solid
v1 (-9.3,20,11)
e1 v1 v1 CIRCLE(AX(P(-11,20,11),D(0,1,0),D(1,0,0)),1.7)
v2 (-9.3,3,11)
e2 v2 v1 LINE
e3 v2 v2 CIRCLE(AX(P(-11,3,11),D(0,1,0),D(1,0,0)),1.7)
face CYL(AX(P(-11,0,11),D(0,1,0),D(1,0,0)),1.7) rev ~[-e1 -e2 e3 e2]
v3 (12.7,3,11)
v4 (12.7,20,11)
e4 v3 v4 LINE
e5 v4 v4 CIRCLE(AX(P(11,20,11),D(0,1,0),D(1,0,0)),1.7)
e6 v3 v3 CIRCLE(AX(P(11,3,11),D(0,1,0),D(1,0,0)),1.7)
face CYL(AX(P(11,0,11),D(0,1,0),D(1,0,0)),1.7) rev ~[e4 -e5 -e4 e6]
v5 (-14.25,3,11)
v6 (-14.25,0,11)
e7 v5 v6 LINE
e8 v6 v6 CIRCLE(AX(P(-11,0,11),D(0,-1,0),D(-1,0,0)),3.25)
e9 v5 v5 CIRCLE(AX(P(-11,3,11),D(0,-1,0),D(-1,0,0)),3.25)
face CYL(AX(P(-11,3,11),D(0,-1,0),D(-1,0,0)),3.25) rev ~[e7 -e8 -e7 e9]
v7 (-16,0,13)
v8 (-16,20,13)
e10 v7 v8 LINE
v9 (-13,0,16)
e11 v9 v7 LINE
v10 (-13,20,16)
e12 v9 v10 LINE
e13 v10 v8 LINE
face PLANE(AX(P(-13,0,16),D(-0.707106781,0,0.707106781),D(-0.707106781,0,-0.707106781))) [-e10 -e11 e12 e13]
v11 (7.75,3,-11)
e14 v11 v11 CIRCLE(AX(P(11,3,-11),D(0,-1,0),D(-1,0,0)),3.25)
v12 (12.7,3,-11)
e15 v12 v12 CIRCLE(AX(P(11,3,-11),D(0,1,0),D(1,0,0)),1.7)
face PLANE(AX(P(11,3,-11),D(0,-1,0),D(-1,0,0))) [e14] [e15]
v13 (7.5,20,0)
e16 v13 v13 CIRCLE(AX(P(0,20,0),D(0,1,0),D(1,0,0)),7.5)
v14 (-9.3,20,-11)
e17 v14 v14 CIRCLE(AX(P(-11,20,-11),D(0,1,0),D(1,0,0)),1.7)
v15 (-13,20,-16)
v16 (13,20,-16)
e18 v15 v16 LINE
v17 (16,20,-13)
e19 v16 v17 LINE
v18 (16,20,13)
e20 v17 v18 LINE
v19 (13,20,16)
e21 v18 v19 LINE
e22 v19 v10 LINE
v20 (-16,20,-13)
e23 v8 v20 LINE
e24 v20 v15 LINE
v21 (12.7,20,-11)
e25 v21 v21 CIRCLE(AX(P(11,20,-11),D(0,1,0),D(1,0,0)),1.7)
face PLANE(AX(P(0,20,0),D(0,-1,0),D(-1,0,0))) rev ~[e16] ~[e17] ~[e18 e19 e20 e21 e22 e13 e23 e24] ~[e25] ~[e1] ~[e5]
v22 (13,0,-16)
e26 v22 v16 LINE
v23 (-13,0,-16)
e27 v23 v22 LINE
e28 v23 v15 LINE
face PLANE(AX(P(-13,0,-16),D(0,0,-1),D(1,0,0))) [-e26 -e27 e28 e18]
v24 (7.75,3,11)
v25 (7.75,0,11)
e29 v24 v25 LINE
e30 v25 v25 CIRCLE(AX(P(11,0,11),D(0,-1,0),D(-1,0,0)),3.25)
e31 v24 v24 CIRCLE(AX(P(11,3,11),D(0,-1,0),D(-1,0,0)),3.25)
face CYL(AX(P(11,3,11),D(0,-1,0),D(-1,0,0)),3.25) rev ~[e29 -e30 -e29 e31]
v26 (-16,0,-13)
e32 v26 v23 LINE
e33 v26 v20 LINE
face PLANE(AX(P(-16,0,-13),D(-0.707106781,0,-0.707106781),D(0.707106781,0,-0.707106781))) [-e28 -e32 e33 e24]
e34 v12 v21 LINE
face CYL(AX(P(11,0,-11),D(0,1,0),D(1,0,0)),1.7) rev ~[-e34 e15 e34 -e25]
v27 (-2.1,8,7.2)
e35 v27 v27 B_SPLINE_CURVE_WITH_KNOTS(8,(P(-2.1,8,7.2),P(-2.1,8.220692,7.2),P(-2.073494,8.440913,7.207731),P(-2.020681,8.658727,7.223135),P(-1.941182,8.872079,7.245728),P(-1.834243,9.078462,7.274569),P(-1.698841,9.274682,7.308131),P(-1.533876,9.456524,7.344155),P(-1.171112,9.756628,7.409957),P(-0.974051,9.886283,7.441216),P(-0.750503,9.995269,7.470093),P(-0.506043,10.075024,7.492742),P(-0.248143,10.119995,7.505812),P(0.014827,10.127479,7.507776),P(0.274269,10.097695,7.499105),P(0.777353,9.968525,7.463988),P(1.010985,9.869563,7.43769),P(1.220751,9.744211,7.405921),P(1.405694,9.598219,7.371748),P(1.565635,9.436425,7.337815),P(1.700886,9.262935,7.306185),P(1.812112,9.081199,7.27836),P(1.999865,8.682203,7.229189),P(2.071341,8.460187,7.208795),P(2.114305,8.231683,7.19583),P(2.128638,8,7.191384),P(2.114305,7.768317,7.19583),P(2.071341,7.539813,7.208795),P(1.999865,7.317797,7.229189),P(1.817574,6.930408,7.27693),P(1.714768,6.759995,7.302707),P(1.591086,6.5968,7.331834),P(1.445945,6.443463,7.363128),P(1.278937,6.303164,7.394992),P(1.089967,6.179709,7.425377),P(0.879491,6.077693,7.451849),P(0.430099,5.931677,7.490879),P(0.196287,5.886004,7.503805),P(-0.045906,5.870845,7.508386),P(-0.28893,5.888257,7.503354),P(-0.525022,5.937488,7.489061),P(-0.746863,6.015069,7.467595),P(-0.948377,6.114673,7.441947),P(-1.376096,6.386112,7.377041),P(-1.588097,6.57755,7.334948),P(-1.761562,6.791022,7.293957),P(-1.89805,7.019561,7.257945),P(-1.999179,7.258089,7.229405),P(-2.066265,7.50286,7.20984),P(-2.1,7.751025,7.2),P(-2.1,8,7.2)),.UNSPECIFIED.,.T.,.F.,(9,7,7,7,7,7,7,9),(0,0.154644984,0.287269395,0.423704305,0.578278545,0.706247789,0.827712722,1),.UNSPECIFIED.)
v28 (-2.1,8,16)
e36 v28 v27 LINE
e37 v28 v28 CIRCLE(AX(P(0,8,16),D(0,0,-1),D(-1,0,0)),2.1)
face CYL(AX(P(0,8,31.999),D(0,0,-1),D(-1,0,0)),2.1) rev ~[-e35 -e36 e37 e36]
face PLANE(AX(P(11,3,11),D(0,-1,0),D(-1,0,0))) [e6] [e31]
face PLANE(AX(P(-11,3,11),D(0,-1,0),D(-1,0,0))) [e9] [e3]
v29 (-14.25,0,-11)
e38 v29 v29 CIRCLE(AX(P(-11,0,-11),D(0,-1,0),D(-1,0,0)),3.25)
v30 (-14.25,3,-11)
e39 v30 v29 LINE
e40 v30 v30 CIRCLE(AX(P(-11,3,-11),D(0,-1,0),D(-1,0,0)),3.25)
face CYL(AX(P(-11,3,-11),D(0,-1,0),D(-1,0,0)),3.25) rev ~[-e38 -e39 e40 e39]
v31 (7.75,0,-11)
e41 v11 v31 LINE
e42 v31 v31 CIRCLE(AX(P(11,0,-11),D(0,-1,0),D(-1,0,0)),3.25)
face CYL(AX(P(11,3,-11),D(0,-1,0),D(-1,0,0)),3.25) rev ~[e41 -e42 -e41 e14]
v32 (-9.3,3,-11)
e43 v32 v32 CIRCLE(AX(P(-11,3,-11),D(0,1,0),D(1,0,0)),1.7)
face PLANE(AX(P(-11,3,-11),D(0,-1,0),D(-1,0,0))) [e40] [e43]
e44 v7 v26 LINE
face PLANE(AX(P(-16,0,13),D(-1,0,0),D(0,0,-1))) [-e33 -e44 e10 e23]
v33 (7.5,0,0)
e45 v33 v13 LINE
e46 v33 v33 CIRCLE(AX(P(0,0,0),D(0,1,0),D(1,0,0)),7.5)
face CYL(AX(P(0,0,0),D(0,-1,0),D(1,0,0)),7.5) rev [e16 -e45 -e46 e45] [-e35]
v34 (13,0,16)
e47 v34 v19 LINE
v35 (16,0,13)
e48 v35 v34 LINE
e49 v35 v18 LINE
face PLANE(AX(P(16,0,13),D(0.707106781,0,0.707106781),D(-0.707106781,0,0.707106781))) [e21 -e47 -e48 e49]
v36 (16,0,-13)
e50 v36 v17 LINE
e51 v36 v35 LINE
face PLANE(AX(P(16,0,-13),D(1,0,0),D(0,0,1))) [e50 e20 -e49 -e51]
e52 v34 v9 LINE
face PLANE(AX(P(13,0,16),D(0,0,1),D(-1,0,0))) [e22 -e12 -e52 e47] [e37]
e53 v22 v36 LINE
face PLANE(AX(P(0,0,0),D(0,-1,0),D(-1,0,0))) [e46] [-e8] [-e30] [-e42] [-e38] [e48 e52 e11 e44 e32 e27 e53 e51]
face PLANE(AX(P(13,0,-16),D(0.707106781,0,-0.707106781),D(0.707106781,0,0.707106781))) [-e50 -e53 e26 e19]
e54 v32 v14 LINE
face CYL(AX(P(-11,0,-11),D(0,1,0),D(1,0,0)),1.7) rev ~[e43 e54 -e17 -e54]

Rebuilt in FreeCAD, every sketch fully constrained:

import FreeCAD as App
import Part
import Sketcher
from FreeCAD import Vector

doc = App.newDocument("Part")
body = doc.addObject("PartDesign::Body", "Body")

# Sketch on XZ plane
sketch1 = body.newObject("Sketcher::SketchObject", "Sketch")
sketch1.AttachmentSupport = (doc.getObject("XZ_Plane"), [""])
sketch1.MapMode = "FlatFace"
sketch1.addGeometry(Part.LineSegment(Vector(-13, -16, 0), Vector(-16, -13, 0)), False)
sketch1.addGeometry(Part.LineSegment(Vector(-16, -13, 0), Vector(-16, 13, 0)), False)
sketch1.addGeometry(Part.LineSegment(Vector(-16, 13, 0), Vector(-13, 16, 0)), False)
sketch1.addGeometry(Part.LineSegment(Vector(-13, 16, 0), Vector(13, 16, 0)), False)
sketch1.addGeometry(Part.LineSegment(Vector(13, 16, 0), Vector(16, 13, 0)), False)
sketch1.addGeometry(Part.LineSegment(Vector(16, 13, 0), Vector(16, -13, 0)), False)
sketch1.addGeometry(Part.LineSegment(Vector(16, -13, 0), Vector(13, -16, 0)), False)
sketch1.addGeometry(Part.LineSegment(Vector(13, -16, 0), Vector(-13, -16, 0)), False)
sketch1.addGeometry(Part.Circle(Vector(0, 0, 0), Vector(0, 0, 1), 7.5), False)
sketch1.addConstraint(Sketcher.Constraint("Coincident", 0, 2, 1, 1))
sketch1.addConstraint(Sketcher.Constraint("Coincident", 1, 2, 2, 1))
sketch1.addConstraint(Sketcher.Constraint("Coincident", 2, 2, 3, 1))
sketch1.addConstraint(Sketcher.Constraint("Coincident", 3, 2, 4, 1))
sketch1.addConstraint(Sketcher.Constraint("Coincident", 4, 2, 5, 1))
sketch1.addConstraint(Sketcher.Constraint("Coincident", 5, 2, 6, 1))
sketch1.addConstraint(Sketcher.Constraint("Coincident", 6, 2, 7, 1))
sketch1.addConstraint(Sketcher.Constraint("Coincident", 7, 2, 0, 1))
sketch1.addConstraint(Sketcher.Constraint("Vertical", 1))
sketch1.addConstraint(Sketcher.Constraint("Horizontal", 3))
sketch1.addConstraint(Sketcher.Constraint("Vertical", 5))
sketch1.addConstraint(Sketcher.Constraint("Horizontal", 7))
sketch1.addConstraint(Sketcher.Constraint("Coincident", 8, 3, -1, 1))
sketch1.addConstraint(Sketcher.Constraint("Symmetric", 0, 2, 4, 2, -1, 1))
sketch1.addConstraint(Sketcher.Constraint("Symmetric", 2, 2, 6, 2, -1, 1))
sketch1.addConstraint(Sketcher.Constraint("Perpendicular", 0, 2))
sketch1.addConstraint(Sketcher.Constraint("Perpendicular", 2, 4))
sketch1.addConstraint(Sketcher.Constraint("Perpendicular", 4, 6))
sketch1.addConstraint(Sketcher.Constraint("Horizontal", 1, 2, 4, 2))
sketch1.addConstraint(Sketcher.Constraint("Vertical", 3, 2, 6, 2))
sketch1.addConstraint(Sketcher.Constraint("Equal", 7, 1))
sketch1.addConstraint(Sketcher.Constraint("Diameter", 8, 15.0))
sketch1.addConstraint(Sketcher.Constraint("DistanceX", 3, 1, 3, 2, 26.0))
sketch1.addConstraint(Sketcher.Constraint("DistanceX", 0, 2, -1, 1, 16.0))
pad1 = body.newObject("PartDesign::Pad", "Pad")
pad1.Profile = sketch1
pad1.Length = 20
pad1.Reversed = True

# Sketch on XY plane
sketch2 = body.newObject("Sketcher::SketchObject", "Sketch001")
sketch2.AttachmentSupport = (doc.getObject("XY_Plane"), [""])
sketch2.MapMode = "FlatFace"
sketch2.AttachmentOffset = App.Placement(Vector(0, 0, 16), App.Rotation())
sketch2.addGeometry(Part.Circle(Vector(0, 8, 0), Vector(0, 0, 1), 2.1), False)
sketch2.addConstraint(Sketcher.Constraint("PointOnObject", 0, 3, -2))
sketch2.addConstraint(Sketcher.Constraint("Diameter", 0, 4.2))
sketch2.addConstraint(Sketcher.Constraint("DistanceY", -1, 1, 0, 3, 8.0))
doc.recompute()
hole = body.newObject("PartDesign::Hole", "Hole")
hole.Profile = sketch2
hole.ThreadType = "None"
hole.Diameter = 4.2
hole.DepthType = "Dimension"
hole.Depth = 15.999
hole.DrillPoint = "Angled"
hole.DrillPointAngle = 118

# Sketch on XZ plane
sketch3 = body.newObject("Sketcher::SketchObject", "Sketch002")
sketch3.AttachmentSupport = (doc.getObject("XZ_Plane"), [""])
sketch3.MapMode = "FlatFace"
sketch3.addGeometry(Part.Circle(Vector(11, -11, 0), Vector(0, 0, 1), 1.7), False)
sketch3.addGeometry(Part.Circle(Vector(-11, -11, 0), Vector(0, 0, 1), 1.7), False)
sketch3.addGeometry(Part.Circle(Vector(-11, 11, 0), Vector(0, 0, 1), 1.7), False)
sketch3.addGeometry(Part.Circle(Vector(11, 11, 0), Vector(0, 0, 1), 1.7), False)
sketch3.addConstraint(Sketcher.Constraint("Equal", 0, 1))
sketch3.addConstraint(Sketcher.Constraint("Equal", 1, 2))
sketch3.addConstraint(Sketcher.Constraint("Equal", 2, 3))
sketch3.addConstraint(Sketcher.Constraint("Symmetric", 0, 3, 2, 3, -1, 1))
sketch3.addConstraint(Sketcher.Constraint("Symmetric", 1, 3, 3, 3, -1, 1))
sketch3.addConstraint(Sketcher.Constraint("Symmetric", 0, 3, 1, 3, -2))
sketch3.addConstraint(Sketcher.Constraint("Diameter", 0, 3.4))
sketch3.addConstraint(Sketcher.Constraint("DistanceX", -1, 1, 0, 3, 11.0))
sketch3.addConstraint(Sketcher.Constraint("DistanceY", 0, 3, -1, 1, 11.0))
doc.recompute()
hole2 = body.newObject("PartDesign::Hole", "Hole001")
hole2.Profile = sketch3
hole2.ThreadType = "None"
hole2.Diameter = 3.4
hole2.DepthType = "ThroughAll"
hole2.HoleCutType = "Counterbore"
hole2.HoleCutDiameter = 6.5
hole2.HoleCutDepth = 3

doc.recompute()
